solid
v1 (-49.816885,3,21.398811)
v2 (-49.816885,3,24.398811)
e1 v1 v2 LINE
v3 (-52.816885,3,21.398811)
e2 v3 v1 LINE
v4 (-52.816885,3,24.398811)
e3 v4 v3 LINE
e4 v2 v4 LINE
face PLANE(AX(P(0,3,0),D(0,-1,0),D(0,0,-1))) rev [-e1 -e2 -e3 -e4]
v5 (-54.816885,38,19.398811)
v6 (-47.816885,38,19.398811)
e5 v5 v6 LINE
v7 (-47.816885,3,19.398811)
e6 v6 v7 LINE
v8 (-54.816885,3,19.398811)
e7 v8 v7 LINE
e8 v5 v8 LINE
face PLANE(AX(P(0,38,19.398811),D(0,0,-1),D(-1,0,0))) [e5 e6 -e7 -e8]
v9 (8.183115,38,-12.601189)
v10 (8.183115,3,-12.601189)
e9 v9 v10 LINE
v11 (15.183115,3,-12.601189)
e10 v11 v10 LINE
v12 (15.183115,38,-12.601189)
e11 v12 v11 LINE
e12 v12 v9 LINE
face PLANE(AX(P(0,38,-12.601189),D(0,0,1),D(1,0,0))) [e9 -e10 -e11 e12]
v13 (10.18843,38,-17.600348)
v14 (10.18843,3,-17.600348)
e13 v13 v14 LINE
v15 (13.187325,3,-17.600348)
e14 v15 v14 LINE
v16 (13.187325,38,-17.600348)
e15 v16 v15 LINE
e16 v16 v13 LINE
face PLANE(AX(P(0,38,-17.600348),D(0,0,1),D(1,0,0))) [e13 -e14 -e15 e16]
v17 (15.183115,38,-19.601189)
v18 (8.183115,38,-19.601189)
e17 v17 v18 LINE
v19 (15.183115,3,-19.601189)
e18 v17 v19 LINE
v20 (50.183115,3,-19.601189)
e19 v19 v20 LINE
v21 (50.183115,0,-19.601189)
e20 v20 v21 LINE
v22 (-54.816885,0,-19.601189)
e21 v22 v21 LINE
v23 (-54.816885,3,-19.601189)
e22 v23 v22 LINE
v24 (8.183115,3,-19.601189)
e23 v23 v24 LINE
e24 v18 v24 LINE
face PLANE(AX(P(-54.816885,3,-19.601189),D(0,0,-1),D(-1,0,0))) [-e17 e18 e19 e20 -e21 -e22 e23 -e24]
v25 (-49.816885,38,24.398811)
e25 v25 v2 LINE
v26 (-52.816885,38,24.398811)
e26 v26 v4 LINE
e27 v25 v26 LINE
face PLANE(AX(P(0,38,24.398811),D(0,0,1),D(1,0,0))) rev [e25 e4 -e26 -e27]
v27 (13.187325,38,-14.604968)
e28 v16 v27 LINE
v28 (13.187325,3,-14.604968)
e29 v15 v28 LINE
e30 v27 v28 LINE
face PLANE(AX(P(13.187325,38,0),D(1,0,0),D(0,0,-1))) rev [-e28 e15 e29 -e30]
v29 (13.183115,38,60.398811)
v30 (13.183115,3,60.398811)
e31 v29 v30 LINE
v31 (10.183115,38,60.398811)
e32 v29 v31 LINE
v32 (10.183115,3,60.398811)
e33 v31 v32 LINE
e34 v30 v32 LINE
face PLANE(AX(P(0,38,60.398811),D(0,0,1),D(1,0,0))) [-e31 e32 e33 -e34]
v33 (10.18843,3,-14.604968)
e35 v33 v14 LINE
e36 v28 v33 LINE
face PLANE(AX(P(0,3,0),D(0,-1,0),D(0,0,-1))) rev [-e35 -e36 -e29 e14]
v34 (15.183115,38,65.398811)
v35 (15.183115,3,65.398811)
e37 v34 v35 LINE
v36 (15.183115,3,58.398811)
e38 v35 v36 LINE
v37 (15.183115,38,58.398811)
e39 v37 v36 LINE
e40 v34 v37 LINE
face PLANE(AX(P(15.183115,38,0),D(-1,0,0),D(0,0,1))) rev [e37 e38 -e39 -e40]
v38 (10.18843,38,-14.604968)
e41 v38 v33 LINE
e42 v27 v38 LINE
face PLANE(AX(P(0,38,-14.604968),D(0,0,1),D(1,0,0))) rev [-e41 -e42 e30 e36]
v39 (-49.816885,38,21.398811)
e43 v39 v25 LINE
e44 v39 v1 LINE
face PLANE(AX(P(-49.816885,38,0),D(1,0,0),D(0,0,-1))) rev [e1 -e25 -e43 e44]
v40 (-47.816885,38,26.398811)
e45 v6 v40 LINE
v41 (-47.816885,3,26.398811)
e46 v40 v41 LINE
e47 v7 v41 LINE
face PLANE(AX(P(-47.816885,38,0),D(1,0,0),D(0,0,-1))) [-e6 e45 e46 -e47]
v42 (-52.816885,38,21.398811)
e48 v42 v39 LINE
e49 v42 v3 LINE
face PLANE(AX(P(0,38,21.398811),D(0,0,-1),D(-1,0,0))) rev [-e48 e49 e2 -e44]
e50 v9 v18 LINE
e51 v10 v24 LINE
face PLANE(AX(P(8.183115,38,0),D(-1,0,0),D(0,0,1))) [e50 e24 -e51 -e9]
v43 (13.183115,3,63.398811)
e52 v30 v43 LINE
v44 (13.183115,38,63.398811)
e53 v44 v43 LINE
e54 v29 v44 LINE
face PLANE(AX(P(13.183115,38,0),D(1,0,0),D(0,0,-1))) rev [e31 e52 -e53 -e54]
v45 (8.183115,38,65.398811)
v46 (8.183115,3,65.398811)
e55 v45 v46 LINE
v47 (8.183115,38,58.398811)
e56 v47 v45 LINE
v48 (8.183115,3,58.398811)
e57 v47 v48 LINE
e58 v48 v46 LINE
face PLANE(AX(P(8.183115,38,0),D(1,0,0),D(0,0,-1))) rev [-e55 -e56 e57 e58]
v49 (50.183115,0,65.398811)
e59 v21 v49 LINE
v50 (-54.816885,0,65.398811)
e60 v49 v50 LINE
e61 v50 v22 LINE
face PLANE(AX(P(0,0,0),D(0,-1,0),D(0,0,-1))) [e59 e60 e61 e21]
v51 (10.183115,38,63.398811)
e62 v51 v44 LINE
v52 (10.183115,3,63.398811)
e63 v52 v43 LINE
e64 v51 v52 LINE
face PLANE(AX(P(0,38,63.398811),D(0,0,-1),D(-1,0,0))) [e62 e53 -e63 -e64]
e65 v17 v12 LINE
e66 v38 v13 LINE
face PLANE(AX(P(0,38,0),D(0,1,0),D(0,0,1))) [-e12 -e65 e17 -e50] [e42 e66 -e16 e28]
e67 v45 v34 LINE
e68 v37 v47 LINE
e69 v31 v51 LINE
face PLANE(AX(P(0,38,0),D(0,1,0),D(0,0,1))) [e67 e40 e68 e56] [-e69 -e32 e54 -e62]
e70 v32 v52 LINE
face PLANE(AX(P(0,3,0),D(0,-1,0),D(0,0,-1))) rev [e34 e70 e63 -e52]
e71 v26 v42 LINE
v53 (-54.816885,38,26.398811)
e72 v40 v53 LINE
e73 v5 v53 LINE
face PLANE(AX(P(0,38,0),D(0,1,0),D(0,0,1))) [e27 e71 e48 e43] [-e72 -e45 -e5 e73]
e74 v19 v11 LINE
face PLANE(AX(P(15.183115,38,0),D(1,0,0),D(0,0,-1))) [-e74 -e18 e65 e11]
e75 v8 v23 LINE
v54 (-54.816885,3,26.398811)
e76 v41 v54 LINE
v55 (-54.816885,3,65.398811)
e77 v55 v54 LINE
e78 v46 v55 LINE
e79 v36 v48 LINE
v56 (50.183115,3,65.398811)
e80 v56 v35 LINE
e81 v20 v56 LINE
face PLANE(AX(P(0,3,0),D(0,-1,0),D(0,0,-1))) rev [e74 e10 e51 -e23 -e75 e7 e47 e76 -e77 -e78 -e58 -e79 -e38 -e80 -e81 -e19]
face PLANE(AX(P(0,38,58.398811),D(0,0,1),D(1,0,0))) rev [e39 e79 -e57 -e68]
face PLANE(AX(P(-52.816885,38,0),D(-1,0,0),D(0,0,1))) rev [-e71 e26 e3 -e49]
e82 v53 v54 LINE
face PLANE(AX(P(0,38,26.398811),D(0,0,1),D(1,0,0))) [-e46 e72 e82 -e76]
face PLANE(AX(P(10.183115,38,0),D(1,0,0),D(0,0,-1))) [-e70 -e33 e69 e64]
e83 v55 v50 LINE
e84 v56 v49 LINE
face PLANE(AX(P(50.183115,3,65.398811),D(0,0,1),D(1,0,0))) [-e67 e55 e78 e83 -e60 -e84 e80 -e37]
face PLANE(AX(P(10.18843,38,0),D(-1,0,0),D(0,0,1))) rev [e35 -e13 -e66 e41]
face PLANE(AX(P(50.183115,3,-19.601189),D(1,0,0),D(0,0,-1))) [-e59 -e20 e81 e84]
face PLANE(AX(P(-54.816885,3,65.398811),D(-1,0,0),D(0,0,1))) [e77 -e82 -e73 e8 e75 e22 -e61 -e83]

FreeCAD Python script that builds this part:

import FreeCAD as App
import Part
import Sketcher

V = App.Vector


def add_polygon(sketch, points):
    """Adds a closed chain of lines whose ends are joined by coincident constraints."""
    first, n = sketch.GeometryCount, len(points)
    for a, b in zip(points, points[1:] + points[:1]):
        sketch.addGeometry(Part.LineSegment(App.Vector(*a, 0), App.Vector(*b, 0)), False)
    for i in range(n):
        sketch.addConstraint(Sketcher.Constraint("Coincident", first + i, 2, first + (i + 1) % n, 1))

doc = App.newDocument("Part")
body = doc.addObject("PartDesign::Body", "Body")

# Sketch on XZ plane
sketch1 = body.newObject("Sketcher::SketchObject", "Sketch")
sketch1.AttachmentSupport = (doc.getObject("XZ_Plane"), [""])
sketch1.MapMode = "FlatFace"
add_polygon(sketch1, [(-54.816885, -19.601189), (-54.816885, 65.398811), (50.183115, 65.398811), (50.183115, -19.601189)])  # lines 0-3
sketch1.addConstraint(Sketcher.Constraint("Vertical", 0))
sketch1.addConstraint(Sketcher.Constraint("Horizontal", 1))
sketch1.addConstraint(Sketcher.Constraint("Vertical", 2))
sketch1.addConstraint(Sketcher.Constraint("Horizontal", 3))
sketch1.addConstraint(Sketcher.Constraint("DistanceX", 1, 1, 1, 2, 105.0))
sketch1.addConstraint(Sketcher.Constraint("DistanceY", 0, 1, 0, 2, 85.0))
sketch1.addConstraint(Sketcher.Constraint("DistanceY", -1, 1, 0, 2, 65.398811))
sketch1.addConstraint(Sketcher.Constraint("DistanceX", 0, 2, -1, 1, 54.816885))
pad1 = body.newObject("PartDesign::Pad", "Pad")
pad1.Profile = sketch1
pad1.Length = 3
pad1.Reversed = True

# Sketch on XZ plane
sketch2 = body.newObject("Sketcher::SketchObject", "Sketch001")
sketch2.AttachmentSupport = (doc.getObject("XZ_Plane"), [""])
sketch2.MapMode = "FlatFace"
sketch2.AttachmentOffset = App.Placement(V(0, 0, -3), App.Rotation())
add_polygon(sketch2, [(8.183115, 58.398811), (8.183115, 65.398811), (15.183115, 65.398811), (15.183115, 58.398811)])  # lines 0-3
add_polygon(sketch2, [(13.183115, 63.398811), (10.183115, 63.398811), (10.183115, 60.398811), (13.183115, 60.398811)])  # lines 4-7
sketch2.addConstraint(Sketcher.Constraint("Vertical", 0))
sketch2.addConstraint(Sketcher.Constraint("Horizontal", 1))
sketch2.addConstraint(Sketcher.Constraint("Vertical", 2))
sketch2.addConstraint(Sketcher.Constraint("Horizontal", 3))
sketch2.addConstraint(Sketcher.Constraint("Horizontal", 4))
sketch2.addConstraint(Sketcher.Constraint("Vertical", 5))
sketch2.addConstraint(Sketcher.Constraint("Horizontal", 6))
sketch2.addConstraint(Sketcher.Constraint("Vertical", 7))
sketch2.addConstraint(Sketcher.Constraint("Equal", 3, 0))
sketch2.addConstraint(Sketcher.Constraint("Equal", 6, 5))
sketch2.addConstraint(Sketcher.Constraint("DistanceX", 1, 1, 1, 2, 7.0))
sketch2.addConstraint(Sketcher.Constraint("DistanceX", 4, 2, 4, 1, 3.0))
sketch2.addConstraint(Sketcher.Constraint("DistanceX", 0, 2, 4, 2, 2.0))
sketch2.addConstraint(Sketcher.Constraint("DistanceY", 4, 2, 0, 2, 2.0))
sketch2.addConstraint(Sketcher.Constraint("DistanceY", -1, 1, 0, 2, 65.398811))
sketch2.addConstraint(Sketcher.Constraint("DistanceX", -1, 1, 0, 2, 8.183115))
pad2 = body.newObject("PartDesign::Pad", "Pad001")
pad2.Profile = sketch2
pad2.Length = 35
pad2.Reversed = True

# Sketch on XZ plane
sketch3 = body.newObject("Sketcher::SketchObject", "Sketch002")
sketch3.AttachmentSupport = (doc.getObject("XZ_Plane"), [""])
sketch3.MapMode = "FlatFace"
sketch3.AttachmentOffset = App.Placement(V(0, 0, -3), App.Rotation())
add_polygon(sketch3, [(15.183115, -12.601189), (15.183115, -19.601189), (8.183115, -19.601189), (8.183115, -12.601189)])  # lines 0-3
add_polygon(sketch3, [(13.187325, -14.604968), (10.18843, -14.604968), (10.18843, -17.600348), (13.187325, -17.600348)])  # lines 4-7
sketch3.addConstraint(Sketcher.Constraint("Vertical", 0))
sketch3.addConstraint(Sketcher.Constraint("Horizontal", 1))
sketch3.addConstraint(Sketcher.Constraint("Vertical", 2))
sketch3.addConstraint(Sketcher.Constraint("Horizontal", 3))
sketch3.addConstraint(Sketcher.Constraint("Horizontal", 4))
sketch3.addConstraint(Sketcher.Constraint("Vertical", 5))
sketch3.addConstraint(Sketcher.Constraint("Horizontal", 6))
sketch3.addConstraint(Sketcher.Constraint("Vertical", 7))
sketch3.addConstraint(Sketcher.Constraint("Equal", 3, 0))
sketch3.addConstraint(Sketcher.Constraint("DistanceX", 1, 2, 1, 1, 7.0))
sketch3.addConstraint(Sketcher.Constraint("DistanceY", 5, 2, 5, 1, 2.995381))
sketch3.addConstraint(Sketcher.Constraint("DistanceX", 4, 2, 4, 1, 2.998895))
sketch3.addConstraint(Sketcher.Constraint("DistanceY", 0, 2, -1, 1, 19.601189))
sketch3.addConstraint(Sketcher.Constraint("DistanceX", -1, 1, 4, 2, 10.18843))
sketch3.addConstraint(Sketcher.Constraint("DistanceY", 5, 2, -1, 1, 17.600348))
sketch3.addConstraint(Sketcher.Constraint("DistanceX", 6, 2, 0, 2, 1.99579))
pad3 = body.newObject("PartDesign::Pad", "Pad002")
pad3.Profile = sketch3
pad3.Length = 35
pad3.Reversed = True

# Sketch on XZ plane
sketch4 = body.newObject("Sketcher::SketchObject", "Sketch003")
sketch4.AttachmentSupport = (doc.getObject("XZ_Plane"), [""])
sketch4.MapMode = "FlatFace"
sketch4.AttachmentOffset = App.Placement(V(0, 0, -3), App.Rotation())
add_polygon(sketch4, [(-54.816885, 19.398811), (-54.816885, 26.398811), (-47.816885, 26.398811), (-47.816885, 19.398811)])  # lines 0-3
add_polygon(sketch4, [(-49.816885, 24.398811), (-52.816885, 24.398811), (-52.816885, 21.398811), (-49.816885, 21.398811)])  # lines 4-7
sketch4.addConstraint(Sketcher.Constraint("Vertical", 0))
sketch4.addConstraint(Sketcher.Constraint("Horizontal", 1))
sketch4.addConstraint(Sketcher.Constraint("Vertical", 2))
sketch4.addConstraint(Sketcher.Constraint("Horizontal", 3))
sketch4.addConstraint(Sketcher.Constraint("Horizontal", 4))
sketch4.addConstraint(Sketcher.Constraint("Vertical", 5))
sketch4.addConstraint(Sketcher.Constraint("Horizontal", 6))
sketch4.addConstraint(Sketcher.Constraint("Vertical", 7))
sketch4.addConstraint(Sketcher.Constraint("Equal", 3, 0))
sketch4.addConstraint(Sketcher.Constraint("Equal", 6, 5))
sketch4.addConstraint(Sketcher.Constraint("DistanceX", 1, 1, 1, 2, 7.0))
sketch4.addConstraint(Sketcher.Constraint("DistanceX", 4, 2, 4, 1, 3.0))
sketch4.addConstraint(Sketcher.Constraint("DistanceX", 0, 2, 4, 2, 2.0))
sketch4.addConstraint(Sketcher.Constraint("DistanceY", 4, 2, 0, 2, 2.0))
sketch4.addConstraint(Sketcher.Constraint("DistanceY", -1, 1, 0, 2, 26.398811))
sketch4.addConstraint(Sketcher.Constraint("DistanceX", 0, 2, -1, 1, 54.816885))
pad4 = body.newObject("PartDesign::Pad", "Pad003")
pad4.Profile = sketch4
pad4.Length = 35
pad4.Reversed = True

doc.recompute()
